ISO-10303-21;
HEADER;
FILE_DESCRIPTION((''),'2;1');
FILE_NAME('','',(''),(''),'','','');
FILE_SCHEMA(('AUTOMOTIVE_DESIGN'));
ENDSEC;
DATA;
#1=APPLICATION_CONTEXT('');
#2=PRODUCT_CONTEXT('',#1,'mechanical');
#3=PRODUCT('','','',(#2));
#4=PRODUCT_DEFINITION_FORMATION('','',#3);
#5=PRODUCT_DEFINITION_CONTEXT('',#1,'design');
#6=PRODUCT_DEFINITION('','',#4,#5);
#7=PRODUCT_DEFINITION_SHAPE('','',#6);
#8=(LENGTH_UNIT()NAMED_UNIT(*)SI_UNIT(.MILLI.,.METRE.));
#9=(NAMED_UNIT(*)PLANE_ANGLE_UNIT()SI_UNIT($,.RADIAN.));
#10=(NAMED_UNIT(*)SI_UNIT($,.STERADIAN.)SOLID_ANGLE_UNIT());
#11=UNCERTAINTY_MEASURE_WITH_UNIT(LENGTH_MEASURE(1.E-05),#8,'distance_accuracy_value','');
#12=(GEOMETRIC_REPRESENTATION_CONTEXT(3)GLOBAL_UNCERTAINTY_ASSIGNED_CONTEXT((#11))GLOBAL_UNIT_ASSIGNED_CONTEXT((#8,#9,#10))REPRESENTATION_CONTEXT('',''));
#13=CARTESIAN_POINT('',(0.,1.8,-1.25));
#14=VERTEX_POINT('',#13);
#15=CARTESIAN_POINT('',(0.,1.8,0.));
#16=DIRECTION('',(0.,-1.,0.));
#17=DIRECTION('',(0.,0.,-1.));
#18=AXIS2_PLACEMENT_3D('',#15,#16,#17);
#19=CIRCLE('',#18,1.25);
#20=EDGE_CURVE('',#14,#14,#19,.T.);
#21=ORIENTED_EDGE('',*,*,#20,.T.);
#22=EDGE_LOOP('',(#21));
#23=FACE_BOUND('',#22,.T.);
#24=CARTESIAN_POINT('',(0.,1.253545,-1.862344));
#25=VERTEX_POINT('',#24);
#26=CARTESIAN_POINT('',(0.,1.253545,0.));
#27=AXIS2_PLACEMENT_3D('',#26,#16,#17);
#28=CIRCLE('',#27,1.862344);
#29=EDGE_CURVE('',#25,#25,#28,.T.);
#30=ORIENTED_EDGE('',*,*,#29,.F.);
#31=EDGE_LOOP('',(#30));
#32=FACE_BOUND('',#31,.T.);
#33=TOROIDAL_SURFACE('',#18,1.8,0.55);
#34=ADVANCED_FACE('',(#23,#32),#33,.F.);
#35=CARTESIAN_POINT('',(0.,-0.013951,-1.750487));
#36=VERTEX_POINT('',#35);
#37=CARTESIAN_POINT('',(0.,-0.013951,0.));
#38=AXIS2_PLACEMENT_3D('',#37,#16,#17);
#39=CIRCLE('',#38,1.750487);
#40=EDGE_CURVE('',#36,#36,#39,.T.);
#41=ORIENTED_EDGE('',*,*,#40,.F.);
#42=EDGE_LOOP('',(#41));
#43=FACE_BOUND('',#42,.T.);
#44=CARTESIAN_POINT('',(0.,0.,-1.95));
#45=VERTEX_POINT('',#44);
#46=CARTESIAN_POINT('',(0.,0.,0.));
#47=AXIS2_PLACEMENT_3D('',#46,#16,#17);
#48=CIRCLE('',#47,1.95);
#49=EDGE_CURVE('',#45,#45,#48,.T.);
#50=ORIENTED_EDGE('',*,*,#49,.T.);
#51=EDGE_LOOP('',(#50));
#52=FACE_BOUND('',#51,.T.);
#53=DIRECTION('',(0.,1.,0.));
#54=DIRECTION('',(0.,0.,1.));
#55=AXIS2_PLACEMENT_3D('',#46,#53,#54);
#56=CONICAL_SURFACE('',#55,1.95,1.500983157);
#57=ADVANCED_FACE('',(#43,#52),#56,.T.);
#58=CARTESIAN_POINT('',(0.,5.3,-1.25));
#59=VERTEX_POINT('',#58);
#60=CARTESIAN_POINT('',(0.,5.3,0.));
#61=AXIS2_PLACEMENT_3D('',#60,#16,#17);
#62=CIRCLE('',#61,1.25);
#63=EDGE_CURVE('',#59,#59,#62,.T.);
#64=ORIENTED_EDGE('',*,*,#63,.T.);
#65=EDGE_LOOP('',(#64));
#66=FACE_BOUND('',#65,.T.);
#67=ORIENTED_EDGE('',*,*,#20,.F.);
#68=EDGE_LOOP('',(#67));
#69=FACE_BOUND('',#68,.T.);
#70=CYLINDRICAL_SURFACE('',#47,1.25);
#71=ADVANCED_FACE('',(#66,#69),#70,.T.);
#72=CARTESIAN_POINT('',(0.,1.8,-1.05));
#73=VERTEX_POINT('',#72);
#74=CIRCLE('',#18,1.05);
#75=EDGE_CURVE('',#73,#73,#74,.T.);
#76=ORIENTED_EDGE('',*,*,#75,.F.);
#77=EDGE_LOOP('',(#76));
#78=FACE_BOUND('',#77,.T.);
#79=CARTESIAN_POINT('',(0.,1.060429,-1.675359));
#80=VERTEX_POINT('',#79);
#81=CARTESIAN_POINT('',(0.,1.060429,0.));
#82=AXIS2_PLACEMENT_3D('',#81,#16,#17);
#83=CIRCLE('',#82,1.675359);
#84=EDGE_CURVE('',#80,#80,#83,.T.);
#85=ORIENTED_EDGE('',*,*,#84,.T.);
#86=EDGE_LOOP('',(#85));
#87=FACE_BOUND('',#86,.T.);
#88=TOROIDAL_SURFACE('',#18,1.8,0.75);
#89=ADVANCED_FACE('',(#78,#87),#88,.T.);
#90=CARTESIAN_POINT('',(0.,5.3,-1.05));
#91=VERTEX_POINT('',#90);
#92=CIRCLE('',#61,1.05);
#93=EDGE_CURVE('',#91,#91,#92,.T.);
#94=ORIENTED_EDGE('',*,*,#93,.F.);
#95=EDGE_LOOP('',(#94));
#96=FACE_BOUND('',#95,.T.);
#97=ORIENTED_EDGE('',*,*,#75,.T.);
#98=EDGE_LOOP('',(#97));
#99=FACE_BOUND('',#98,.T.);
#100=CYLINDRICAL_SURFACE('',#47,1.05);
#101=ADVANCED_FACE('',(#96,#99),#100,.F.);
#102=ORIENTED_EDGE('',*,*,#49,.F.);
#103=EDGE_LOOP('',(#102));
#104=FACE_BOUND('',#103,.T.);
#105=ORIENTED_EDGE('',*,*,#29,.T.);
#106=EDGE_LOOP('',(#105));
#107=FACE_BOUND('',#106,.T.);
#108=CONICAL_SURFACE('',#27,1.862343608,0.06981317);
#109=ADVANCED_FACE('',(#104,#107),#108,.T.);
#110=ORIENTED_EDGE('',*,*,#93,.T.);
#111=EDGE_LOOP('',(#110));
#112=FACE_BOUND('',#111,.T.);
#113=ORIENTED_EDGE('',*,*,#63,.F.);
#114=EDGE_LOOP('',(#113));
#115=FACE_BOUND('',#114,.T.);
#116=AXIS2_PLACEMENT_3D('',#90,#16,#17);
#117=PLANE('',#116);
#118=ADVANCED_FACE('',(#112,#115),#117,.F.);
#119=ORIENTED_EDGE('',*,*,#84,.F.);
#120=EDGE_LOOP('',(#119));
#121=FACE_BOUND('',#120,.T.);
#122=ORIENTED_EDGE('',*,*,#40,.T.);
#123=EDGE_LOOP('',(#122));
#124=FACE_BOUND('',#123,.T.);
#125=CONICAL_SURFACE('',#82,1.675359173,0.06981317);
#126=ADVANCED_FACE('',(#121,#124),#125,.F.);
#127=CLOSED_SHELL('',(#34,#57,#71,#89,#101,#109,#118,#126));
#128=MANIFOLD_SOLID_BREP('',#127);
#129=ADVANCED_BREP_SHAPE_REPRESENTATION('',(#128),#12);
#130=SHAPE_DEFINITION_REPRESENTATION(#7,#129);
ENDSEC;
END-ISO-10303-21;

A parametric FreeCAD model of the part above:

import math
import FreeCAD as App
import Part
import Sketcher

V = App.Vector
Q = App.Units.Quantity

doc = App.newDocument("Part")
params = doc.addObject("Spreadsheet::Sheet", "Params")
for row, (alias, value) in enumerate([
    ("sketch1_radius", "0.75 mm"),
    ("sketch1_radius2", "0.55 mm"),
    ("sketch1_width", "3.5 mm"),
    ("sketch1_length", "0.2 mm"),
    ("revolution_angle", "360 deg"),
], start=1):
    params.set(f"A{row}", alias)
    params.set(f"B{row}", "=" + value)
    params.setAlias(f"B{row}", alias)

body = doc.addObject("PartDesign::Body", "Body")

sketch1 = doc.addObject("Sketcher::SketchObject", "Sketch")
body.addObject(sketch1)
sketch1.AttachmentSupport = (doc.YZ_Plane, [""])
sketch1.MapMode = "FlatFace"
sketch1.addGeometry([
    Part.LineSegment(V(1.8, -1.25, 0), V(5.3, -1.25, 0)),
    Part.LineSegment(V(5.3, -1.25, 0), V(5.3, -1.05, 0)),
    Part.LineSegment(V(5.3, -1.05, 0), V(1.8, -1.05, 0)),
    Part.ArcOfCircle(Part.Circle(V(1.8, -1.8, 0), V(0, 0, 1), 0.75), math.radians(90), math.radians(170)),
    Part.LineSegment(V(1.06, -1.68, 0), V(-0.01, -1.75, 0)),
    Part.LineSegment(V(-0.01, -1.75, 0), V(0, -1.95, 0)),
    Part.LineSegment(V(0, -1.95, 0), V(1.25, -1.86, 0)),
    Part.ArcOfCircle(Part.Circle(V(1.8, -1.8, 0), V(0, 0, 1), 0.55), math.radians(90), math.radians(187)),
], False)
sketch1.addConstraint([
    Sketcher.Constraint("Coincident", 0, 2, 1, 1),
    Sketcher.Constraint("Coincident", 1, 2, 2, 1),
    Sketcher.Constraint("Tangent", 2, 2, 3, 1),
    Sketcher.Constraint("Coincident", 3, 2, 4, 1),
    Sketcher.Constraint("Coincident", 4, 2, 5, 1),
    Sketcher.Constraint("Coincident", 5, 2, 6, 1),
    Sketcher.Constraint("Coincident", 6, 2, 7, 2),
    Sketcher.Constraint("Tangent", 7, 1, 0, 1),
    Sketcher.Constraint("Horizontal", 0),
    Sketcher.Constraint("Vertical", 1),
    Sketcher.Constraint("Horizontal", 2),
    Sketcher.Constraint("Coincident", 7, 3, 3, 3),
    Sketcher.Constraint("PointOnObject", 5, 2, -2),
    Sketcher.Constraint("Perpendicular", 4, 5),
    Sketcher.Constraint("Perpendicular", 5, 6),
    Sketcher.Constraint("Angle", 4, Q("-176 deg")),
    Sketcher.Constraint("Radius", 3, 0.75),
    Sketcher.Constraint("Radius", 7, 0.55),
    Sketcher.Constraint("DistanceX", 0, 1, 0, 2, 3.5),
    Sketcher.Constraint("Distance", 5, 0.2),
    Sketcher.Constraint("DistanceX", -1, 1, 3, 3, 1.8),
    Sketcher.Constraint("DistanceY", 3, 3, -1, 1, 1.8),
    Sketcher.Constraint("DistanceY", 5, 2, 2, 2, 0.9),
])
sketch1.setExpression("Constraints[16]", "Params.sketch1_radius")
sketch1.setExpression("Constraints[17]", "Params.sketch1_radius2")
sketch1.setExpression("Constraints[18]", "Params.sketch1_width")
sketch1.setExpression("Constraints[19]", "Params.sketch1_length")
revolution = doc.addObject("PartDesign::Revolution", "Revolution")
body.addObject(revolution)
revolution.Profile = sketch1
revolution.ReferenceAxis = (sketch1, ["H_Axis"])
revolution.setExpression("Angle", "Params.revolution_angle")

doc.recompute()
